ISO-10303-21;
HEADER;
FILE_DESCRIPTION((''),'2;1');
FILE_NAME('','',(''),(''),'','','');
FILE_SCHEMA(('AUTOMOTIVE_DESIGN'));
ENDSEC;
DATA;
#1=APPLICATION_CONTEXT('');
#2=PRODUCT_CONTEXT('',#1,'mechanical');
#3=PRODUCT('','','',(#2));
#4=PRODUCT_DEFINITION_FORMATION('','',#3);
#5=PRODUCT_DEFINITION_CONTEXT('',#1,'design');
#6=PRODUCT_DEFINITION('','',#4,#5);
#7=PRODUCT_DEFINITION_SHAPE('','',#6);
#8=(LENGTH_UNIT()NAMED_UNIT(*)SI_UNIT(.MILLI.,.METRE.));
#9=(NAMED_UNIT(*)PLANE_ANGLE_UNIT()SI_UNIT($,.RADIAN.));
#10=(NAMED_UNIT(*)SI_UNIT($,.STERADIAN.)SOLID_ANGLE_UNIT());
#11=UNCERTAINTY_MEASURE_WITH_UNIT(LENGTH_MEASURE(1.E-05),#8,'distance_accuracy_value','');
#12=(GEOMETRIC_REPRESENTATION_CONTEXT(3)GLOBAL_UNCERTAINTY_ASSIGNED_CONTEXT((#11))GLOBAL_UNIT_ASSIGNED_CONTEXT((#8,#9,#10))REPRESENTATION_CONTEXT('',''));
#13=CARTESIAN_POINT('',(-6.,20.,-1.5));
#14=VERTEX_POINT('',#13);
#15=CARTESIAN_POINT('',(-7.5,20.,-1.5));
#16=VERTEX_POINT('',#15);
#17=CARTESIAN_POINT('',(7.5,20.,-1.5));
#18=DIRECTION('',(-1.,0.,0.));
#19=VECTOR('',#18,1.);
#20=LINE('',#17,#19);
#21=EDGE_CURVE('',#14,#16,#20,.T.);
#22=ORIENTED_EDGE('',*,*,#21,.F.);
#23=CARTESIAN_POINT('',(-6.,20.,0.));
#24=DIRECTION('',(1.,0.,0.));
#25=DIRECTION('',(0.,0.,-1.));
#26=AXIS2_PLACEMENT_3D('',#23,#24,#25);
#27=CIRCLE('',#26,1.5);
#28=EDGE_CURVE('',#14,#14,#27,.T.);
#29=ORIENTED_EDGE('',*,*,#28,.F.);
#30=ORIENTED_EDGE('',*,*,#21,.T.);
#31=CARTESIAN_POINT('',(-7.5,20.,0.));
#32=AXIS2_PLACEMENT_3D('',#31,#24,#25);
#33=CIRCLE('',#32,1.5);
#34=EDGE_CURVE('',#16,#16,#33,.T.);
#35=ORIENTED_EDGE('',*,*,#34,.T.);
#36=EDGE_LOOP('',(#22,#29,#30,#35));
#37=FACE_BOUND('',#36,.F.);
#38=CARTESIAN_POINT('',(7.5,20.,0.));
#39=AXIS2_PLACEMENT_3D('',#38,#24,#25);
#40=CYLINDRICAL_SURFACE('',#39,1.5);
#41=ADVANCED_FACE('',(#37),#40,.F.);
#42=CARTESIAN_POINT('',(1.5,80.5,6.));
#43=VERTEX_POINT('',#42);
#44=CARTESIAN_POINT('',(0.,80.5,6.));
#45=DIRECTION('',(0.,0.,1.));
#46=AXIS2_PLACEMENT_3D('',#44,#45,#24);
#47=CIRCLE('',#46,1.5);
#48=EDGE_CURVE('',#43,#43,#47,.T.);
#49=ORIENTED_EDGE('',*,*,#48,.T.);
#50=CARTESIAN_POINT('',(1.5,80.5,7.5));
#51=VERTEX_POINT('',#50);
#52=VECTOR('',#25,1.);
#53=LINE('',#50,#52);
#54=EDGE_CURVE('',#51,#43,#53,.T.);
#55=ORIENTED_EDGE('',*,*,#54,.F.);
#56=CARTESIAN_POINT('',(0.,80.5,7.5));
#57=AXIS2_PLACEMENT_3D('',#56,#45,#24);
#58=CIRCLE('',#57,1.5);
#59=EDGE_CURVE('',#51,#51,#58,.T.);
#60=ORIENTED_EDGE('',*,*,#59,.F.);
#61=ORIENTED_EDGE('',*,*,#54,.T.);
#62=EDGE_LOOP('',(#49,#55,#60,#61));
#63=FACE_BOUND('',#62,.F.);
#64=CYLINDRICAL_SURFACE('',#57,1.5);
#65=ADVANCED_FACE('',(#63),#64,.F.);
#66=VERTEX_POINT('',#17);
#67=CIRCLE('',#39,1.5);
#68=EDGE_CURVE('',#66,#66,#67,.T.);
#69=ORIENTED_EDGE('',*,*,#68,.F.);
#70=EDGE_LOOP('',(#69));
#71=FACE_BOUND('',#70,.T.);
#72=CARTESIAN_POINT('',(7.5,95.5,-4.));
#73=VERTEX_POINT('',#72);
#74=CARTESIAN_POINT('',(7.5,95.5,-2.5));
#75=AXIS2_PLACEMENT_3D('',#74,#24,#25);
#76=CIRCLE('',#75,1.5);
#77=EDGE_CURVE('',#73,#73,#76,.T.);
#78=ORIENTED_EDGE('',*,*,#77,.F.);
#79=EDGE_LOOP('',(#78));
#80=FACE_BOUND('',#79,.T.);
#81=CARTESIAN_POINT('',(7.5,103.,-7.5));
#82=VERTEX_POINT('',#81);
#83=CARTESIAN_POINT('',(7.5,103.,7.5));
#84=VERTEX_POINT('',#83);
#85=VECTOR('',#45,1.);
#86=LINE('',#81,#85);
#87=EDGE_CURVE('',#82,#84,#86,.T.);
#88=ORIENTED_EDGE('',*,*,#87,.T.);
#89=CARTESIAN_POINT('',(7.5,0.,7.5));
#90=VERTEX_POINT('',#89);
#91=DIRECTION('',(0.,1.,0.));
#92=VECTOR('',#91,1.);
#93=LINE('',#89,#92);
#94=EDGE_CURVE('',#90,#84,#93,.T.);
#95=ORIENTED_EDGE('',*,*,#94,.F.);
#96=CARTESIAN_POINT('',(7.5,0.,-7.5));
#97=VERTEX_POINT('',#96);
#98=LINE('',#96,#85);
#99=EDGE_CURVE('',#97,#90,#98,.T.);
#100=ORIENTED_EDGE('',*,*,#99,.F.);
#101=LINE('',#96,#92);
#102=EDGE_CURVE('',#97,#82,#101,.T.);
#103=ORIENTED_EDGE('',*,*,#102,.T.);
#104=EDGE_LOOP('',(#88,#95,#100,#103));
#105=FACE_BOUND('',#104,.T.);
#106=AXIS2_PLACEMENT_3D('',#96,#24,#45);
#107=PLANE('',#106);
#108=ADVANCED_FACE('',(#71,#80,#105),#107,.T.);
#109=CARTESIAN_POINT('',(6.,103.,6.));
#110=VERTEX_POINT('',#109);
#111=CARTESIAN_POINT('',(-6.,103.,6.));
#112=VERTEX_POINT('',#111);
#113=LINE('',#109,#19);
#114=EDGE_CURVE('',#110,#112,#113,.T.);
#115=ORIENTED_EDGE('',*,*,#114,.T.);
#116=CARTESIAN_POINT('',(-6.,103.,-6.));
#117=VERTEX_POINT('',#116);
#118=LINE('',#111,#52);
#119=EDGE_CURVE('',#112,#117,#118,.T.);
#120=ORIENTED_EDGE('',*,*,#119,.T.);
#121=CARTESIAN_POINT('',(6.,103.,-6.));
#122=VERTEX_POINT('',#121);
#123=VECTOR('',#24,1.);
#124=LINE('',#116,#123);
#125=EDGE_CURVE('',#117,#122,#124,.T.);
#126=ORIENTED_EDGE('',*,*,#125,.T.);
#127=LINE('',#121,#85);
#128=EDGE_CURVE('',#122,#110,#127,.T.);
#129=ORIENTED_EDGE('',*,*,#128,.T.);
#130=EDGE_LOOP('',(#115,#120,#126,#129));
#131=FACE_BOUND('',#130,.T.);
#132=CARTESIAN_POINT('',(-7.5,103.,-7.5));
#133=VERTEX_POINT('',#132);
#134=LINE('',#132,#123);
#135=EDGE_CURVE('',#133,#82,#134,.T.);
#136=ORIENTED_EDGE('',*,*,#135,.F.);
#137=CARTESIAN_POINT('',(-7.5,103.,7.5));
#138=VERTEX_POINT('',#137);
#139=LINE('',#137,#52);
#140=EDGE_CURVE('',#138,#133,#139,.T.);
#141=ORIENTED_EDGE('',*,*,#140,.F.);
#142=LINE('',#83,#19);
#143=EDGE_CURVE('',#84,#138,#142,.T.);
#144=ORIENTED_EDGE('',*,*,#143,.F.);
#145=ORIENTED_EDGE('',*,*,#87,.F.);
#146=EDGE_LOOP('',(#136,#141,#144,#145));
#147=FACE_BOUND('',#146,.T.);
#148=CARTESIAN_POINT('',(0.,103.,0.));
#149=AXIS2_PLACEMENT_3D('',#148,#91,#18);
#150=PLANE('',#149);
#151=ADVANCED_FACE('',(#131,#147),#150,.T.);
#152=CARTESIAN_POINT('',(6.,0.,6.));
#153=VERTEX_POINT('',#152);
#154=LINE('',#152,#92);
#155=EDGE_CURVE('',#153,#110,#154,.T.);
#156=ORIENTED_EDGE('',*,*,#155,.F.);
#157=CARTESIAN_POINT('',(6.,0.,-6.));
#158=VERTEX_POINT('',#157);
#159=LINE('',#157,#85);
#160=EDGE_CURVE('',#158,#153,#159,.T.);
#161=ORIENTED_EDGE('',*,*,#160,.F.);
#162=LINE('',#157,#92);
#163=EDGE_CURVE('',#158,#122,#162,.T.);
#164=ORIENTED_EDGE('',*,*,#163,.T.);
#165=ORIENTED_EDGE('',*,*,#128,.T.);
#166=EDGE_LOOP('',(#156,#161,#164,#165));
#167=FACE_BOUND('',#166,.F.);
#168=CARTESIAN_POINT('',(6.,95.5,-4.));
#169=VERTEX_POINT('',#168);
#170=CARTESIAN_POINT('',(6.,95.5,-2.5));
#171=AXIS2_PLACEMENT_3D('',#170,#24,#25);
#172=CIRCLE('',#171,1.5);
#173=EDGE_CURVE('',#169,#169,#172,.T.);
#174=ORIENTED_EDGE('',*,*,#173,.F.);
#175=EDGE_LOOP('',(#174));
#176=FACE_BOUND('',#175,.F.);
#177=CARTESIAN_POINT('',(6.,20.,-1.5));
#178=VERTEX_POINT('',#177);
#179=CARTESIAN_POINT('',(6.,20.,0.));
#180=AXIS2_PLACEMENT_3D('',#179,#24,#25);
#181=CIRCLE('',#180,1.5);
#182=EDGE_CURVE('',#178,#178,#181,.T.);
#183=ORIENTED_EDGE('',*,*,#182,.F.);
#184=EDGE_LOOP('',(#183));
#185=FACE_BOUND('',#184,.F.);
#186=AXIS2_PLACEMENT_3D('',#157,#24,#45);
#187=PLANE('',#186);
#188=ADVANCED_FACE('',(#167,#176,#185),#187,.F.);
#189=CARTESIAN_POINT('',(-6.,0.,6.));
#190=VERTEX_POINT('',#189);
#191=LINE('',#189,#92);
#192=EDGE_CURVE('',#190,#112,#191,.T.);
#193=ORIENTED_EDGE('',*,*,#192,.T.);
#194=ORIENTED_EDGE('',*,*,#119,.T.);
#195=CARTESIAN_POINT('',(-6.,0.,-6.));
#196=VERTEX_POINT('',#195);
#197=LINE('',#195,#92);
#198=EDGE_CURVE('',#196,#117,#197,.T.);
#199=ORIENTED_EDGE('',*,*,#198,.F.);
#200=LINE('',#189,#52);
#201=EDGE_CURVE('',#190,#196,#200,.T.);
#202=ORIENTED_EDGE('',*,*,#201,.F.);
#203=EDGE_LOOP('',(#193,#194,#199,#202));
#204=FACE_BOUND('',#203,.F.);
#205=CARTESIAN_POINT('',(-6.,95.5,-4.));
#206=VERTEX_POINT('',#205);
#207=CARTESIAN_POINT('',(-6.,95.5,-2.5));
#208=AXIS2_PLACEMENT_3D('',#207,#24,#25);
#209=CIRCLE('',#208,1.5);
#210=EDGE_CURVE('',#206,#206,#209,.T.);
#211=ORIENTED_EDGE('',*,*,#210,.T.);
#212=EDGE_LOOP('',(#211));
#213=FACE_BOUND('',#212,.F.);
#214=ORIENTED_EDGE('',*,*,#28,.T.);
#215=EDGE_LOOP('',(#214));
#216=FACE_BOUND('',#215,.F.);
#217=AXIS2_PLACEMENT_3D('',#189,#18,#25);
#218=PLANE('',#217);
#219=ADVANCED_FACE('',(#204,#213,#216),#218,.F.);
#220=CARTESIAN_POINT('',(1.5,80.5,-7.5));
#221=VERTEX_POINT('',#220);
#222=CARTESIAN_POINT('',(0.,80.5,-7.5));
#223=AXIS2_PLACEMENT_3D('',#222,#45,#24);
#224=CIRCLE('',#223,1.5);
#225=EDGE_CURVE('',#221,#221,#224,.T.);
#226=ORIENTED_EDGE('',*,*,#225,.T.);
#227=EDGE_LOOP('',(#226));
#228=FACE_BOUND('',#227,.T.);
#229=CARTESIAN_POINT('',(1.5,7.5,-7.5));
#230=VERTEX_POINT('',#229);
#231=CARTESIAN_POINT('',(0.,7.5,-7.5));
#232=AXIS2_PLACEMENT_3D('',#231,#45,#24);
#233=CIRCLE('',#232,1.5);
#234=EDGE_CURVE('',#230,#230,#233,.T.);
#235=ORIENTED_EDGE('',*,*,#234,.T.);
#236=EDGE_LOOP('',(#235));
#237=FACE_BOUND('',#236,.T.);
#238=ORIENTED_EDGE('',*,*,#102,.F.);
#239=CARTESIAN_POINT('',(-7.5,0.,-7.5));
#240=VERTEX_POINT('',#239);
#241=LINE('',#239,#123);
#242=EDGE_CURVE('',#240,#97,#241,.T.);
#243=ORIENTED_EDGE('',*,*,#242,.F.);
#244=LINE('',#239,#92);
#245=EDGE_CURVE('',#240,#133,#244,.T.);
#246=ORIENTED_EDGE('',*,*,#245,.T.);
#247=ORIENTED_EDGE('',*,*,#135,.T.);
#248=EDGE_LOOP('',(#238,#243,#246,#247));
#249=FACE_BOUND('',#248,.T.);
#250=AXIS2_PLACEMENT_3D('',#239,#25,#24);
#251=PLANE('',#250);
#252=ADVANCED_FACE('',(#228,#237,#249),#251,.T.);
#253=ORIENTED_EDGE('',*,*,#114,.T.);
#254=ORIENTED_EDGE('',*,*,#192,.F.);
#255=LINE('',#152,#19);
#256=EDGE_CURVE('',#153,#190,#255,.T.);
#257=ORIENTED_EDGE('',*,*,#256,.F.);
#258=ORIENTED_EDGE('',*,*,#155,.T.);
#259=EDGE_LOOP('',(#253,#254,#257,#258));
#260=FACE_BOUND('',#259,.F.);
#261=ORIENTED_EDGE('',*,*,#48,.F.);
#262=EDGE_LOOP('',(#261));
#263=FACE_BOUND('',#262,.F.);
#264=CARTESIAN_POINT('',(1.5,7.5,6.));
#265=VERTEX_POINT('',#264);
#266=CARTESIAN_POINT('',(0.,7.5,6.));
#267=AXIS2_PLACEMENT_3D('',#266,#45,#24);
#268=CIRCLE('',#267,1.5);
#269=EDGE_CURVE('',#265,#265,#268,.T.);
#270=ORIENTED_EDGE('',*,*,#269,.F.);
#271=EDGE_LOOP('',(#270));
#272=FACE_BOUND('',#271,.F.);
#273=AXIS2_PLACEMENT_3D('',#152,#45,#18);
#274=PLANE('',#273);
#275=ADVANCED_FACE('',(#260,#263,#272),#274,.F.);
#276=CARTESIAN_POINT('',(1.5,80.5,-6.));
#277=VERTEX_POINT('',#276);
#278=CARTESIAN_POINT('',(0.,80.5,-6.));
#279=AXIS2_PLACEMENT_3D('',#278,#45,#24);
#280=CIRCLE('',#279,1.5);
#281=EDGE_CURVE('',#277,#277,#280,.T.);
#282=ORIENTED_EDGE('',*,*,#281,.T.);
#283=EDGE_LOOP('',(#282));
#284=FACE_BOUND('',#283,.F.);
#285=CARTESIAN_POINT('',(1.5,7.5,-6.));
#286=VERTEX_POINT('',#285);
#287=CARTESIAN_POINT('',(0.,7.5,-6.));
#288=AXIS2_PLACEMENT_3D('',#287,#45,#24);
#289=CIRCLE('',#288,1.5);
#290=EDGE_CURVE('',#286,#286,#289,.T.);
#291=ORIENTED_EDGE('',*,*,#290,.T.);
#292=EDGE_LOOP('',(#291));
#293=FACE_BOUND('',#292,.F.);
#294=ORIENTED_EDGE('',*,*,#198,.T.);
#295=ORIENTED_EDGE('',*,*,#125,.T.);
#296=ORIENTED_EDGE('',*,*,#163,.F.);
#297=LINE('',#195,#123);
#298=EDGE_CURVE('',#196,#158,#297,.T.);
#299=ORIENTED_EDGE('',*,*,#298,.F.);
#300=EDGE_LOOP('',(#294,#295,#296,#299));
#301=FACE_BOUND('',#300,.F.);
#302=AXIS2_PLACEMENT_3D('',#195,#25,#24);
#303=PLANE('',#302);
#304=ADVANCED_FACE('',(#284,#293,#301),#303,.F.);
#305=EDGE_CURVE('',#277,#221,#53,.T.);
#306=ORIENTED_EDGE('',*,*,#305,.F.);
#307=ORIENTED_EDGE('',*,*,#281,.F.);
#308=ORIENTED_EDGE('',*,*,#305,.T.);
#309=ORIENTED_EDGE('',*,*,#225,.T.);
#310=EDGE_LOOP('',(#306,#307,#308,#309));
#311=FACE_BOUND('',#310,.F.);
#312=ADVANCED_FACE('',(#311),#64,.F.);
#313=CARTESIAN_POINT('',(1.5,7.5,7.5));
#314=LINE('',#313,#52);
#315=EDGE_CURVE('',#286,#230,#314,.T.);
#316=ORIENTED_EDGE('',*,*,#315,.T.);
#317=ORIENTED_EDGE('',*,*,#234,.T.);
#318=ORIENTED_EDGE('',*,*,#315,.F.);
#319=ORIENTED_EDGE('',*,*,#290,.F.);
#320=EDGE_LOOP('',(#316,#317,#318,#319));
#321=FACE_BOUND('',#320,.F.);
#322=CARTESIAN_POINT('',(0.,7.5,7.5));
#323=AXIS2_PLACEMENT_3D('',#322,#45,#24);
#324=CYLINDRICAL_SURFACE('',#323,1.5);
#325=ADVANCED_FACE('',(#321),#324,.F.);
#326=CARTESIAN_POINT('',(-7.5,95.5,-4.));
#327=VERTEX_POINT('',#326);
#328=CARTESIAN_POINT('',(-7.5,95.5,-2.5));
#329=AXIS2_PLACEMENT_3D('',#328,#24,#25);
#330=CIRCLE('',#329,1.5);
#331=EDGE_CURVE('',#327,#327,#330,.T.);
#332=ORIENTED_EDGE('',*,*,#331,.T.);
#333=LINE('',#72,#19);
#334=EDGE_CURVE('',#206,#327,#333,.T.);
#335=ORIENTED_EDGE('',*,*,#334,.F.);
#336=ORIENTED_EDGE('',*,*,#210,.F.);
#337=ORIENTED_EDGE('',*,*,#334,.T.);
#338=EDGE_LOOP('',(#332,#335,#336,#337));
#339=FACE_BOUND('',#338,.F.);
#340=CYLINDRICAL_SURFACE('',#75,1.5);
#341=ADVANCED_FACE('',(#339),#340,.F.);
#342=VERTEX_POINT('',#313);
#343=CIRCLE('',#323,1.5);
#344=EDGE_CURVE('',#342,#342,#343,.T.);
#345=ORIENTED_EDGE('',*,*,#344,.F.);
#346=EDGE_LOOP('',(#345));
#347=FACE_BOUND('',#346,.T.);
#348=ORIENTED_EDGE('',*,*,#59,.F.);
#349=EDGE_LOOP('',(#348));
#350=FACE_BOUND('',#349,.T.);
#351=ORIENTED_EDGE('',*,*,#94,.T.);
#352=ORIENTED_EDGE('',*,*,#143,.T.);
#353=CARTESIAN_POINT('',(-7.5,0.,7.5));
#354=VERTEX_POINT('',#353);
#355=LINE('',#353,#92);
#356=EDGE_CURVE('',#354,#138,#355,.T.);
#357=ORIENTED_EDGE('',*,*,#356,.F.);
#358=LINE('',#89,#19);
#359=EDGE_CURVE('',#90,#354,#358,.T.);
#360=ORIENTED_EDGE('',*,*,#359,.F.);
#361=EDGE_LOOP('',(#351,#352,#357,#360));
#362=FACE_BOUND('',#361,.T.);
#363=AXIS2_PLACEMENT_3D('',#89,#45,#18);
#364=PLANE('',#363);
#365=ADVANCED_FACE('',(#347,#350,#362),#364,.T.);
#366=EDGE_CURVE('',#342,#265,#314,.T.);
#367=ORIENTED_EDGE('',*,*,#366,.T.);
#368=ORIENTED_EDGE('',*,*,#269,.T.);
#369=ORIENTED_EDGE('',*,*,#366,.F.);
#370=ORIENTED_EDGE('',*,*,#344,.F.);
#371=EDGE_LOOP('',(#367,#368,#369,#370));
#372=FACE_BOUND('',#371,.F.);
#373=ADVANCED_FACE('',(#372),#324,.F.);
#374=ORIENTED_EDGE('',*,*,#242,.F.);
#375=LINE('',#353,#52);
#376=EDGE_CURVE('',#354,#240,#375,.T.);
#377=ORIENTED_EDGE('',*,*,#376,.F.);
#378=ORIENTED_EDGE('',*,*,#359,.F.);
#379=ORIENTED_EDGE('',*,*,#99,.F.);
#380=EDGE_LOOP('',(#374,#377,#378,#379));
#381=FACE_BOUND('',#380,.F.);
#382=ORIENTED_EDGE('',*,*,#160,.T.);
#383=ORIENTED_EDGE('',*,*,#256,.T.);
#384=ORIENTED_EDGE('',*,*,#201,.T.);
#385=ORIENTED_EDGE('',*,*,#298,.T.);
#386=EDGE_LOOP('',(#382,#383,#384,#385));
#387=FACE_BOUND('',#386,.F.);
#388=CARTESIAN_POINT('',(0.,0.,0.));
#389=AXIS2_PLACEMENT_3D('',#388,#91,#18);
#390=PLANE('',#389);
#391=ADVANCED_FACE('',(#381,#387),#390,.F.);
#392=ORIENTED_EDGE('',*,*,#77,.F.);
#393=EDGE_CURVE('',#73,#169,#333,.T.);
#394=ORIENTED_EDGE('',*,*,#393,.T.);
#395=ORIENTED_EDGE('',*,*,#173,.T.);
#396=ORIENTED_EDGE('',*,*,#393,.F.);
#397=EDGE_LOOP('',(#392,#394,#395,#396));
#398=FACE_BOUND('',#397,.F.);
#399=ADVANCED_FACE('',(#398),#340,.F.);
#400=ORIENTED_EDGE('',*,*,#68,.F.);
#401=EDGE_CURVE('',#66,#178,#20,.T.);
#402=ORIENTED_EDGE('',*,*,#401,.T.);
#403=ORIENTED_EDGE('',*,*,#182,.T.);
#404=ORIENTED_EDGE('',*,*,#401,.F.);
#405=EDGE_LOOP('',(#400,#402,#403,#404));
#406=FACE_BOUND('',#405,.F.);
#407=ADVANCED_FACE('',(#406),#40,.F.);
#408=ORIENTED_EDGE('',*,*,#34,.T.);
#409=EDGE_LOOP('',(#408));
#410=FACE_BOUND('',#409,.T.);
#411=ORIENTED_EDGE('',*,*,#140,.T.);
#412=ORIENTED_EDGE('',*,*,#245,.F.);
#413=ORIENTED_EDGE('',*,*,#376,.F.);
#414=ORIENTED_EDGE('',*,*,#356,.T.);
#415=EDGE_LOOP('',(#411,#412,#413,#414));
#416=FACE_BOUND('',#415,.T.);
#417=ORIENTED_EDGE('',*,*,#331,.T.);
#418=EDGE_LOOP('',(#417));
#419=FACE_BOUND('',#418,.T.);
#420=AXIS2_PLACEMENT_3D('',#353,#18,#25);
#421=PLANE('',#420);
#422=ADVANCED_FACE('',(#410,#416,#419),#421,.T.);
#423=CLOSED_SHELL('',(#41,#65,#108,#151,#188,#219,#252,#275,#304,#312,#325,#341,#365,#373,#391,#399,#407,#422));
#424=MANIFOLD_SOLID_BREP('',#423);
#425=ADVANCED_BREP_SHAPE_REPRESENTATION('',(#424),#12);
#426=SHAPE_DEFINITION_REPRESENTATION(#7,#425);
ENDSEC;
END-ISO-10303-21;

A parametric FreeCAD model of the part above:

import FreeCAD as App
import Part
import Sketcher
from FreeCAD import Vector

doc = App.newDocument("Part")
body = doc.addObject("PartDesign::Body", "Body")

# Sketch on XZ plane
sketch1 = body.newObject("Sketcher::SketchObject", "Sketch")
sketch1.AttachmentSupport = (doc.getObject("XZ_Plane"), [""])
sketch1.MapMode = "FlatFace"
sketch1.addGeometry([
    Part.LineSegment(Vector(8, -8, 0), Vector(-8, -8, 0)),  # 0
    Part.LineSegment(Vector(-8, -8, 0), Vector(-8, 8, 0)),  # 1
    Part.LineSegment(Vector(-8, 8, 0), Vector(8, 8, 0)),  # 2
    Part.LineSegment(Vector(8, 8, 0), Vector(8, -8, 0)),  # 3
    Part.LineSegment(Vector(-6, 6, 0), Vector(-6, -6, 0)),  # 4
    Part.LineSegment(Vector(-6, -6, 0), Vector(6, -6, 0)),  # 5
    Part.LineSegment(Vector(6, -6, 0), Vector(6, 6, 0)),  # 6
    Part.LineSegment(Vector(6, 6, 0), Vector(-6, 6, 0)),  # 7
], False)
sketch1.addConstraint([
    Sketcher.Constraint("Coincident", 0, 2, 1, 1),
    Sketcher.Constraint("Coincident", 1, 2, 2, 1),
    Sketcher.Constraint("Coincident", 2, 2, 3, 1),
    Sketcher.Constraint("Coincident", 3, 2, 0, 1),
    Sketcher.Constraint("Coincident", 4, 2, 5, 1),
    Sketcher.Constraint("Coincident", 5, 2, 6, 1),
    Sketcher.Constraint("Coincident", 6, 2, 7, 1),
    Sketcher.Constraint("Coincident", 7, 2, 4, 1),
    Sketcher.Constraint("Horizontal", 0),
    Sketcher.Constraint("Vertical", 1),
    Sketcher.Constraint("Horizontal", 2),
    Sketcher.Constraint("Vertical", 3),
    Sketcher.Constraint("Vertical", 4),
    Sketcher.Constraint("Horizontal", 5),
    Sketcher.Constraint("Vertical", 6),
    Sketcher.Constraint("Horizontal", 7),
    Sketcher.Constraint("Symmetric", 0, 2, 2, 2, -1, 1),
    Sketcher.Constraint("Symmetric", 4, 2, 6, 2, -1, 1),
    Sketcher.Constraint("Equal", 2, 1),
    Sketcher.Constraint("Equal", 7, 4),
    Sketcher.Constraint("DistanceX", 0, 2, 0, 1, 15.0),
    Sketcher.Constraint("DistanceX", 0, 2, 4, 2, 1.5),
])
pad1 = body.newObject("PartDesign::Pad", "Pad")
pad1.Profile = sketch1
pad1.Length = 103
pad1.Reversed = True

# Sketch on XY plane
sketch2 = body.newObject("Sketcher::SketchObject", "Sketch001")
sketch2.AttachmentSupport = (doc.getObject("XY_Plane"), [""])
sketch2.MapMode = "FlatFace"
sketch2.AttachmentOffset = App.Placement(Vector(0, 0, 7.5), App.Rotation())
sketch2.addGeometry([
    Part.Circle(Vector(0, 7.5, 0), Vector(0, 0, 1), 1.5),
    Part.Circle(Vector(0, 80.5, 0), Vector(0, 0, 1), 1.5),
], False)
sketch2.addConstraint([
    Sketcher.Constraint("Equal", 0, 1),
    Sketcher.Constraint("PointOnObject", 0, 3, -2),
    Sketcher.Constraint("PointOnObject", 1, 3, -2),
    Sketcher.Constraint("Diameter", 0, 3.0),
    Sketcher.Constraint("DistanceY", -1, 1, 0, 3, 7.5),
    Sketcher.Constraint("DistanceY", 0, 3, 1, 3, 73.0),
])
pocket1 = body.newObject("PartDesign::Pocket", "Pocket")
pocket1.Profile = sketch2
pocket1.Type = "ThroughAll"

# Sketch on YZ plane
sketch3 = body.newObject("Sketcher::SketchObject", "Sketch002")
sketch3.AttachmentSupport = (doc.getObject("YZ_Plane"), [""])
sketch3.MapMode = "FlatFace"
sketch3.AttachmentOffset = App.Placement(Vector(0, 0, 7.5), App.Rotation())
sketch3.addGeometry([
    Part.Circle(Vector(20, 0, 0), Vector(0, 0, 1), 1.5),
    Part.Circle(Vector(95.5, -2.5, 0), Vector(0, 0, 1), 1.5),
], False)
sketch3.addConstraint([
    Sketcher.Constraint("Equal", 0, 1),
    Sketcher.Constraint("PointOnObject", 0, 3, -1),
    Sketcher.Constraint("Diameter", 0, 3.0),
    Sketcher.Constraint("DistanceX", -1, 1, 0, 3, 20.0),
    Sketcher.Constraint("DistanceY", 1, 3, -1, 1, 2.5),
    Sketcher.Constraint("DistanceX", -1, 1, 1, 3, 95.5),
])
pocket2 = body.newObject("PartDesign::Pocket", "Pocket001")
pocket2.Profile = sketch3
pocket2.Type = "ThroughAll"

doc.recompute()
